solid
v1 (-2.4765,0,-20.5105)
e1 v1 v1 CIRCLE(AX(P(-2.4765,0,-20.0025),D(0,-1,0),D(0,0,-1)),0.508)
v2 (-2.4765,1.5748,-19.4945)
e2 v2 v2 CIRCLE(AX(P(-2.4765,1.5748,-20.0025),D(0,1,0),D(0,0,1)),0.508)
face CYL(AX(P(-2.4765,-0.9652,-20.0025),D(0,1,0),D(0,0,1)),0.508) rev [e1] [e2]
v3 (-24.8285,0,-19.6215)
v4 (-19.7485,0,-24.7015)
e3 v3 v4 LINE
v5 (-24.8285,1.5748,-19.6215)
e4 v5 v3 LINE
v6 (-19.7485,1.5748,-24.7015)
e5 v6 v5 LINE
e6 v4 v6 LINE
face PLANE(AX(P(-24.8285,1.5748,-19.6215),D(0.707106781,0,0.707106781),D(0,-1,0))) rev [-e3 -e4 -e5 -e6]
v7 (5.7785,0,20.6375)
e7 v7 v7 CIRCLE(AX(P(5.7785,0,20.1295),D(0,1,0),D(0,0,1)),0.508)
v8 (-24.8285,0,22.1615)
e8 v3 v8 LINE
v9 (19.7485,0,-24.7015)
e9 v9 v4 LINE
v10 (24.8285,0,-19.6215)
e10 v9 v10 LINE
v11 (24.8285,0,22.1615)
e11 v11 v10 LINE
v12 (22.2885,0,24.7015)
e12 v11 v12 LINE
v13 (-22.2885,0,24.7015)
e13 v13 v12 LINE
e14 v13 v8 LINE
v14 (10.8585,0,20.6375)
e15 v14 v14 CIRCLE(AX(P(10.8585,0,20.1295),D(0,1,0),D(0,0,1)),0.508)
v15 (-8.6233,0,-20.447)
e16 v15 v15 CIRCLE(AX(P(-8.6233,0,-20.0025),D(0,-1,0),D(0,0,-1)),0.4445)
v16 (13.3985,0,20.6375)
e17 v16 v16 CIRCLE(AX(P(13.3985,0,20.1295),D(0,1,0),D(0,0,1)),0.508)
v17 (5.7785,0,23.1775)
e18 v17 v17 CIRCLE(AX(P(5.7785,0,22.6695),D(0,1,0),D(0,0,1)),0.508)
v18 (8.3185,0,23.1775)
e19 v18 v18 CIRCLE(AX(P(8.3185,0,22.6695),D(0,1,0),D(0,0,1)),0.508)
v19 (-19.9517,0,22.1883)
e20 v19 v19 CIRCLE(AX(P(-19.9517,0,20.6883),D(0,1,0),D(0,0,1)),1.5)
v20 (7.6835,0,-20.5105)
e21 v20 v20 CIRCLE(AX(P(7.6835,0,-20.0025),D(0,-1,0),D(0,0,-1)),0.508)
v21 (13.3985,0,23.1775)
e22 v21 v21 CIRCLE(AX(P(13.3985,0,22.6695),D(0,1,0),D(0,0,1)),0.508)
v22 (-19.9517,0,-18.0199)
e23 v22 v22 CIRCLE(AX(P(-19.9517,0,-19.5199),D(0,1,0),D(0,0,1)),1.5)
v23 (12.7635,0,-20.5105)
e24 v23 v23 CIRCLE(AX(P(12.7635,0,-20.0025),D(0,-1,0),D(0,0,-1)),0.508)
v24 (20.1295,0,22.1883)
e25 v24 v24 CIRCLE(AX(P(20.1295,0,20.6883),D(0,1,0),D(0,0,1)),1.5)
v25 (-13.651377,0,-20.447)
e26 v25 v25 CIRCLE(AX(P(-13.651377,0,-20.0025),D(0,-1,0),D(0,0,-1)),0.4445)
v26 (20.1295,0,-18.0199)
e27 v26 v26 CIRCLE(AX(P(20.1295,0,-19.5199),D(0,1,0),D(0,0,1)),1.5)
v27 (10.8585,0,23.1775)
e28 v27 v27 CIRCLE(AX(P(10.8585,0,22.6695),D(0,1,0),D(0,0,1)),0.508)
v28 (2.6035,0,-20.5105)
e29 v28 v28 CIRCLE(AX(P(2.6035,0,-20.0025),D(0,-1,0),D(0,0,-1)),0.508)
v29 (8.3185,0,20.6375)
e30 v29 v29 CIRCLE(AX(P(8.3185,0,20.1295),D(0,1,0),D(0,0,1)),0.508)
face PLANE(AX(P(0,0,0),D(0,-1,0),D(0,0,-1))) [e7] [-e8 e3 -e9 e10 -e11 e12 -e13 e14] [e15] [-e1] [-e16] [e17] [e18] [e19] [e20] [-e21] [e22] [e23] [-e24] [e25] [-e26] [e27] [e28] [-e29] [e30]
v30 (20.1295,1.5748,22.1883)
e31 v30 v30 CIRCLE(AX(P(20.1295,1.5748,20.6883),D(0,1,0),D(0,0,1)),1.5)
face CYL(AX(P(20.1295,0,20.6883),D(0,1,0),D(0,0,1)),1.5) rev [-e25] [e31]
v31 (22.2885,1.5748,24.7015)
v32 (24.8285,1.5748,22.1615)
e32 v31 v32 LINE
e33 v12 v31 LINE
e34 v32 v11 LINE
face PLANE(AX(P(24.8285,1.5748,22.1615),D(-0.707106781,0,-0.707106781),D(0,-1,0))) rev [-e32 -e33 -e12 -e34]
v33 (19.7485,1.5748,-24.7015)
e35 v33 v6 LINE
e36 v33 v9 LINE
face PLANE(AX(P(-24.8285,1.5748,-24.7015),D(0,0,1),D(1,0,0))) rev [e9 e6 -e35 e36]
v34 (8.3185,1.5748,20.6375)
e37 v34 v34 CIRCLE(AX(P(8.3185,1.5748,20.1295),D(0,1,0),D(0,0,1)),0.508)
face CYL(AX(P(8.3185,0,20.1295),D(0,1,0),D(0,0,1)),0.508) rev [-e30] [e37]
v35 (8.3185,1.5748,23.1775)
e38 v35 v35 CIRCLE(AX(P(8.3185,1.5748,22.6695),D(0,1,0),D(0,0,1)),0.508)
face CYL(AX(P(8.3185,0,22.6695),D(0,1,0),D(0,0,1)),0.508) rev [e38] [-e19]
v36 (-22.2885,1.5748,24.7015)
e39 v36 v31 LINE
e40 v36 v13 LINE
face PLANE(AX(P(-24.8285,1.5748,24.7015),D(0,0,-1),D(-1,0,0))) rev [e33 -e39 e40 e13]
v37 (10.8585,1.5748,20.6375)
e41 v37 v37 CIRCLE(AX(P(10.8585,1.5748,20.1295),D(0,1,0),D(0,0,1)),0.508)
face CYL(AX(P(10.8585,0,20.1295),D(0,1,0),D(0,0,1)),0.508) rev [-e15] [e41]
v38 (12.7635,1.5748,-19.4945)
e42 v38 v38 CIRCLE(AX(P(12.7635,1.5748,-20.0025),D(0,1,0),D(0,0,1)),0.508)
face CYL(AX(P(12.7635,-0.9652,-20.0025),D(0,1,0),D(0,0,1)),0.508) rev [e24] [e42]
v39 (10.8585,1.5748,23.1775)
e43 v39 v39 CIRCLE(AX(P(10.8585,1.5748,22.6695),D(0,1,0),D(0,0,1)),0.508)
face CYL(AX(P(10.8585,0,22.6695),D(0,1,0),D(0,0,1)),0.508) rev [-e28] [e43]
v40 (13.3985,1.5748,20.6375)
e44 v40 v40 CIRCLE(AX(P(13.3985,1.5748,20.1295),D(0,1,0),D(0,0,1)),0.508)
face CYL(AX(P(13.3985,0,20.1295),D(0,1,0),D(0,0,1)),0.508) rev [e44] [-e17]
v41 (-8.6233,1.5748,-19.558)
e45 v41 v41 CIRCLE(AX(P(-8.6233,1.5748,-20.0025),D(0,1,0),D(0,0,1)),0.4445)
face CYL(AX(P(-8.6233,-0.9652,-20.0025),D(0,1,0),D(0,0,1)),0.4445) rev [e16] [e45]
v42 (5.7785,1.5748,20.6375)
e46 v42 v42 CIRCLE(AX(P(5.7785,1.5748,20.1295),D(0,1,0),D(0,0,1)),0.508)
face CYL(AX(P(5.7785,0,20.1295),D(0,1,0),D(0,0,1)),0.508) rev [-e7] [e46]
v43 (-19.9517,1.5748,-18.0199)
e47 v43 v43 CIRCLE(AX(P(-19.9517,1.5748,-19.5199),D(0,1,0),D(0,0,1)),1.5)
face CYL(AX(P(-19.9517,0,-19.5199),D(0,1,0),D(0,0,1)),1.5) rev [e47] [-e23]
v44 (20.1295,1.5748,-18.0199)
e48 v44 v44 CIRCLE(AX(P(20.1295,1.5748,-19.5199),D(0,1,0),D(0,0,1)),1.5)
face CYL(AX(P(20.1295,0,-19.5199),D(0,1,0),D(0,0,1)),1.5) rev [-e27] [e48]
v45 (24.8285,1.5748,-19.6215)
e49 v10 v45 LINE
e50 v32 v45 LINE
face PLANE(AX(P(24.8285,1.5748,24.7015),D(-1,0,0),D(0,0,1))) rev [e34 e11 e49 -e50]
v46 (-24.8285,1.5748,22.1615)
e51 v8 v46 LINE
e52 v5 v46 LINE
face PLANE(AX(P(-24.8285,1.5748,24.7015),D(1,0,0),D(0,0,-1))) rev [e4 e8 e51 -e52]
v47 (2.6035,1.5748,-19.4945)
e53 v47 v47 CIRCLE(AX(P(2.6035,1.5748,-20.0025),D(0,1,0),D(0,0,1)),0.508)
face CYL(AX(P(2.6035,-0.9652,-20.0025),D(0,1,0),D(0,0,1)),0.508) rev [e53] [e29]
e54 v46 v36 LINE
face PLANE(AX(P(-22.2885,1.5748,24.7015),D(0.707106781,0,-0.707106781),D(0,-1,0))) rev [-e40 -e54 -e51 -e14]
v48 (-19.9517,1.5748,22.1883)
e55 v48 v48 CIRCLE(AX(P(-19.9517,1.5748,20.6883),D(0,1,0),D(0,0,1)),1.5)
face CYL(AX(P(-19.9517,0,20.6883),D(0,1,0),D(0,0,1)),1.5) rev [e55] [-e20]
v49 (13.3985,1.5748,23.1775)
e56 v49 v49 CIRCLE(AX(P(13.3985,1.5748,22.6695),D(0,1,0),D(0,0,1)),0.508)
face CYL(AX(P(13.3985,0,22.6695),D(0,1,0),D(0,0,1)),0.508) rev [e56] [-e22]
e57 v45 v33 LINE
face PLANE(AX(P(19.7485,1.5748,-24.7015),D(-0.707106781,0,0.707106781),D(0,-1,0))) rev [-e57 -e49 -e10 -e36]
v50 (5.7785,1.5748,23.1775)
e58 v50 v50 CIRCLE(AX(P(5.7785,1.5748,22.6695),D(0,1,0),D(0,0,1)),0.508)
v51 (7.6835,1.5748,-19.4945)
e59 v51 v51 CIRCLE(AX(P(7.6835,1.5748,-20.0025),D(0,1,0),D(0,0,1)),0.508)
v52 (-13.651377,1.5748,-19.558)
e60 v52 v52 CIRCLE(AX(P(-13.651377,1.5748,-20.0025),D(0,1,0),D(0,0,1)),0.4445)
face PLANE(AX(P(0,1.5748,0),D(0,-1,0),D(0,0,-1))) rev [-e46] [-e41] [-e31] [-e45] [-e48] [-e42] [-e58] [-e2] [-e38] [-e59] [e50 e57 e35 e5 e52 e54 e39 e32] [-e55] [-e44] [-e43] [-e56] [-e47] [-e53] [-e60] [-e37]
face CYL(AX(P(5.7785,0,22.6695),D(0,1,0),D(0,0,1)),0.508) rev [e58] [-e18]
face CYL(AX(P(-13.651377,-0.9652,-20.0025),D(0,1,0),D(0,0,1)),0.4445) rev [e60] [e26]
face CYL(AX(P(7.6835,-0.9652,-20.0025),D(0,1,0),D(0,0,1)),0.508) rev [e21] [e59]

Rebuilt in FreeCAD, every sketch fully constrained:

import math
import FreeCAD as App
import Part
import Sketcher
Q = App.Units.Quantity


def edges_at(feature, points):
    """Names of the edges that pass closest to the given points."""
    edges = feature.Shape.Edges
    near = lambda p: min(range(len(edges)), key=lambda i: edges[i].distToShape(Part.Vertex(*p))[0])
    return sorted({f"Edge{near(p) + 1}" for p in points})

doc = App.newDocument("Part")
body = doc.addObject("PartDesign::Body", "Body")

# Sketch on XZ plane
sketch1 = body.newObject("Sketcher::SketchObject", "Sketch")
sketch1.AttachmentSupport = (doc.getObject("XZ_Plane"), [""])
sketch1.MapMode = "FlatFace"
sketch1.addGeometry([
    Part.LineSegment(App.Vector(-24.8285, -24.7015, 0), App.Vector(-24.8285, 24.7015, 0)),
    Part.LineSegment(App.Vector(-24.8285, 24.7015, 0), App.Vector(24.8285, 24.7015, 0)),
    Part.LineSegment(App.Vector(24.8285, 24.7015, 0), App.Vector(24.8285, -24.7015, 0)),
    Part.LineSegment(App.Vector(24.8285, -24.7015, 0), App.Vector(-24.8285, -24.7015, 0)),
], False)
sketch1.addConstraint([
    Sketcher.Constraint("Coincident", 0, 2, 1, 1),
    Sketcher.Constraint("Coincident", 1, 2, 2, 1),
    Sketcher.Constraint("Coincident", 2, 2, 3, 1),
    Sketcher.Constraint("Coincident", 3, 2, 0, 1),
    Sketcher.Constraint("Vertical", 0),
    Sketcher.Constraint("Horizontal", 1),
    Sketcher.Constraint("Vertical", 2),
    Sketcher.Constraint("Horizontal", 3),
    Sketcher.Constraint("Symmetric", 0, 2, 2, 2, -1, 1),
    Sketcher.Constraint("DistanceX", 1, 1, 1, 2, Q("1.955 in")),
    Sketcher.Constraint("DistanceY", 0, 1, 0, 2, Q("1.945 in")),
])
pad1 = body.newObject("PartDesign::Pad", "Pad")
pad1.Profile = sketch1
pad1.Length = Q("0.062 in")
pad1.Reversed = True
doc.recompute()

chamfer = body.newObject("PartDesign::Chamfer", "Chamfer")
chamfer.Base = (pad1, edges_at(pad1, [(-24.828, 0.787, -24.701), (24.828, 0.787, -24.701)]))
chamfer.Size = Q("0.2 in")
doc.recompute()

chamfer2 = body.newObject("PartDesign::Chamfer", "Chamfer001")
chamfer2.Base = (chamfer, edges_at(chamfer, [(24.828, 0.787, 24.701), (-24.828, 0.787, 24.701)]))
chamfer2.Size = Q("0.1 in")

# Sketch on XZ plane
sketch2 = body.newObject("Sketcher::SketchObject", "Sketch001")
sketch2.AttachmentSupport = (doc.getObject("XZ_Plane"), [""])
sketch2.MapMode = "FlatFace"
sketch2.AttachmentOffset = App.Placement(App.Vector(0, 0, -0.062 * 25.4), App.Rotation())
sketch2.addGeometry([
    Part.ArcOfCircle(Part.Circle(App.Vector(-19.9517, -19.5199, 0), App.Vector(0, 0, 1), 1.5), math.radians(90), math.radians(360)),  # 0
    Part.ArcOfCircle(Part.Circle(App.Vector(-19.9517, -19.5199, 0), App.Vector(0, 0, 1), 1.5), math.radians(0), math.radians(90)),  # 1
    Part.ArcOfCircle(Part.Circle(App.Vector(20.1295, -19.5199, 0), App.Vector(0, 0, 1), 1.5), math.radians(90), math.radians(180)),  # 2
    Part.ArcOfCircle(Part.Circle(App.Vector(20.1295, -19.5199, 0), App.Vector(0, 0, 1), 1.5), math.radians(0), math.radians(90)),  # 3
    Part.ArcOfCircle(Part.Circle(App.Vector(20.1295, -19.5199, 0), App.Vector(0, 0, 1), 1.5), math.radians(180), math.radians(360)),  # 4
    Part.ArcOfCircle(Part.Circle(App.Vector(20.1295, 20.6883, 0), App.Vector(0, 0, 1), 1.5), math.radians(180), math.radians(270)),  # 5
    Part.ArcOfCircle(Part.Circle(App.Vector(20.1295, 20.6883, 0), App.Vector(0, 0, 1), 1.5), math.radians(0), math.radians(180)),  # 6
    Part.ArcOfCircle(Part.Circle(App.Vector(20.1295, 20.6883, 0), App.Vector(0, 0, 1), 1.5), math.radians(-90), math.radians(0)),  # 7
    Part.ArcOfCircle(Part.Circle(App.Vector(-19.9517, 20.6883, 0), App.Vector(0, 0, 1), 1.5), math.radians(-90), math.radians(0)),  # 8
    Part.ArcOfCircle(Part.Circle(App.Vector(-19.9517, 20.6883, 0), App.Vector(0, 0, 1), 1.5), math.radians(0), math.radians(270)),  # 9
    Part.Circle(App.Vector(5.7785, 20.1295, 0), App.Vector(0, 0, 1), 0.508),  # 10
    Part.Circle(App.Vector(8.3185, 20.1295, 0), App.Vector(0, 0, 1), 0.508),  # 11
    Part.Circle(App.Vector(10.8585, 20.1295, 0), App.Vector(0, 0, 1), 0.508),  # 12
    Part.Circle(App.Vector(13.3985, 20.1295, 0), App.Vector(0, 0, 1), 0.508),  # 13
    Part.Circle(App.Vector(13.3985, 22.6695, 0), App.Vector(0, 0, 1), 0.508),  # 14
    Part.Circle(App.Vector(10.8585, 22.6695, 0), App.Vector(0, 0, 1), 0.508),  # 15
    Part.Circle(App.Vector(8.3185, 22.6695, 0), App.Vector(0, 0, 1), 0.508),  # 16
    Part.Circle(App.Vector(5.7785, 22.6695, 0), App.Vector(0, 0, 1), 0.508),  # 17
], False)
sketch2.addConstraint([
    Sketcher.Constraint("Tangent", 0, 1, 1, 2),
    Sketcher.Constraint("Coincident", 1, 1, 0, 2),
    Sketcher.Constraint("Tangent", 2, 1, 3, 2),
    Sketcher.Constraint("Tangent", 3, 1, 4, 2),
    Sketcher.Constraint("Tangent", 4, 1, 2, 2),
    Sketcher.Constraint("Tangent", 5, 1, 6, 2),
    Sketcher.Constraint("Tangent", 6, 1, 7, 2),
    Sketcher.Constraint("Tangent", 7, 1, 5, 2),
    Sketcher.Constraint("Tangent", 8, 1, 9, 2),
    Sketcher.Constraint("Coincident", 9, 1, 8, 2),
    Sketcher.Constraint("Equal", 1, 2),
    Sketcher.Constraint("Equal", 4, 5),
    Sketcher.Constraint("Equal", 7, 8),
    Sketcher.Constraint("Equal", 10, 11),
    Sketcher.Constraint("Equal", 11, 12),
    Sketcher.Constraint("Equal", 12, 13),
    Sketcher.Constraint("Equal", 13, 14),
    Sketcher.Constraint("Equal", 14, 15),
    Sketcher.Constraint("Equal", 15, 16),
    Sketcher.Constraint("Equal", 16, 17),
    Sketcher.Constraint("Horizontal", 1, 3, 2, 3),
    Sketcher.Constraint("Horizontal", 7, 3, 8, 3),
    Sketcher.Constraint("Horizontal", 10, 3, 11, 3),
    Sketcher.Constraint("Horizontal", 11, 3, 12, 3),
    Sketcher.Constraint("Horizontal", 12, 3, 13, 3),
    Sketcher.Constraint("Horizontal", 14, 3, 15, 3),
    Sketcher.Constraint("Horizontal", 15, 3, 16, 3),
    Sketcher.Constraint("Horizontal", 16, 3, 17, 3),
    Sketcher.Constraint("Horizontal", 4, 3, 1, 1),
    Sketcher.Constraint("Horizontal", 1, 1, 3, 1),
    Sketcher.Constraint("Horizontal", 3, 1, 4, 1),
    Sketcher.Constraint("Horizontal", 9, 3, 5, 1),
    Sketcher.Constraint("Horizontal", 5, 1, 6, 1),
    Sketcher.Constraint("Horizontal", 6, 1, 9, 1),
    Sketcher.Constraint("Vertical", 4, 3, 5, 3),
    Sketcher.Constraint("Vertical", 1, 3, 8, 3),
    Sketcher.Constraint("Vertical", 13, 3, 14, 3),
    Sketcher.Constraint("Vertical", 12, 3, 15, 3),
    Sketcher.Constraint("Vertical", 11, 3, 16, 3),
    Sketcher.Constraint("Vertical", 10, 3, 17, 3),
    Sketcher.Constraint("Vertical", 9, 3, 0, 1),
    Sketcher.Constraint("Vertical", 7, 3, 2, 1),
    Sketcher.Constraint("Vertical", 2, 1, 7, 1),
    Sketcher.Constraint("Vertical", 0, 1, 8, 1),
    Sketcher.Constraint("Diameter", 10, Q("0.04 in")),
    Sketcher.Constraint("DistanceX", 10, 3, 11, 3, Q("0.1 in")),
    Sketcher.Constraint("DistanceX", 11, 3, 12, 3, Q("0.1 in")),
    Sketcher.Constraint("DistanceX", 12, 3, 13, 3, Q("0.1 in")),
    Sketcher.Constraint("DistanceY", 13, 3, 14, 3, Q("0.1 in")),
    Sketcher.Constraint("Radius", 0, Q("1.5 mm")),
    Sketcher.Constraint("DistanceX", 1, 3, 2, 3, Q("1.578 in")),
    Sketcher.Constraint("DistanceY", 2, 3, 5, 3, Q("1.583 in")),
    Sketcher.Constraint("DistanceX", 10, 3, 5, 3, Q("0.565 in")),
    Sketcher.Constraint("DistanceY", 10, 3, 5, 3, Q("0.022 in")),
    Sketcher.Constraint("DistanceX", 0, 3, -1, 1, Q("0.7855 in")),
    Sketcher.Constraint("DistanceY", 0, 3, -1, 1, Q("0.7685 in")),
])
pocket1 = body.newObject("PartDesign::Pocket", "Pocket")
pocket1.Profile = sketch2
pocket1.Type = "ThroughAll"
pocket1.Reversed = True

# Sketch on XZ plane
sketch3 = body.newObject("Sketcher::SketchObject", "Sketch002")
sketch3.AttachmentSupport = (doc.getObject("XZ_Plane"), [""])
sketch3.MapMode = "FlatFace"
sketch3.AttachmentOffset = App.Placement(App.Vector(0, 0, -0.062 * 25.4), App.Rotation())
sketch3.addGeometry([
    Part.Circle(App.Vector(12.7635, -20.0025, 0), App.Vector(0, 0, 1), 0.508),  # 0
    Part.Circle(App.Vector(7.6835, -20.0025, 0), App.Vector(0, 0, 1), 0.508),  # 1
    Part.Circle(App.Vector(2.6035, -20.0025, 0), App.Vector(0, 0, 1), 0.508),  # 2
    Part.Circle(App.Vector(-2.4765, -20.0025, 0), App.Vector(0, 0, 1), 0.508),  # 3
    Part.Circle(App.Vector(-8.6233, -20.0025, 0), App.Vector(0, 0, 1), 0.4445),  # 4
    Part.Circle(App.Vector(-13.651377, -20.0025, 0), App.Vector(0, 0, 1), 0.4445),  # 5
], False)
sketch3.addConstraint([
    Sketcher.Constraint("Equal", 0, 1),
    Sketcher.Constraint("Equal", 1, 2),
    Sketcher.Constraint("Equal", 2, 3),
    Sketcher.Constraint("Equal", 4, 5),
    Sketcher.Constraint("Horizontal", 0, 3, 1, 3),
    Sketcher.Constraint("Horizontal", 1, 3, 2, 3),
    Sketcher.Constraint("Horizontal", 2, 3, 3, 3),
    Sketcher.Constraint("Horizontal", 3, 3, 4, 3),
    Sketcher.Constraint("Horizontal", 4, 3, 5, 3),
    Sketcher.Constraint("Diameter", 0, Q("0.04 in")),
    Sketcher.Constraint("Diameter", 4, Q("0.035 in")),
    Sketcher.Constraint("DistanceX", 1, 3, 0, 3, Q("0.2 in")),
    Sketcher.Constraint("DistanceX", 2, 3, 1, 3, Q("0.2 in")),
    Sketcher.Constraint("DistanceX", 3, 3, 2, 3, Q("0.2 in")),
    Sketcher.Constraint("DistanceX", 4, 3, 3, 3, Q("0.242 in")),
    Sketcher.Constraint("DistanceX", -1, 1, 0, 3, Q("0.5025 in")),
    Sketcher.Constraint("DistanceY", 0, 3, -1, 1, Q("0.7875 in")),
    Sketcher.Constraint("DistanceX", 5, 3, -1, 1, Q("13.651377 mm")),
])
pocket2 = body.newObject("PartDesign::Pocket", "Pocket001")
pocket2.Profile = sketch3
pocket2.Length = Q("0.1 in")
pocket2.Reversed = True

doc.recompute()
